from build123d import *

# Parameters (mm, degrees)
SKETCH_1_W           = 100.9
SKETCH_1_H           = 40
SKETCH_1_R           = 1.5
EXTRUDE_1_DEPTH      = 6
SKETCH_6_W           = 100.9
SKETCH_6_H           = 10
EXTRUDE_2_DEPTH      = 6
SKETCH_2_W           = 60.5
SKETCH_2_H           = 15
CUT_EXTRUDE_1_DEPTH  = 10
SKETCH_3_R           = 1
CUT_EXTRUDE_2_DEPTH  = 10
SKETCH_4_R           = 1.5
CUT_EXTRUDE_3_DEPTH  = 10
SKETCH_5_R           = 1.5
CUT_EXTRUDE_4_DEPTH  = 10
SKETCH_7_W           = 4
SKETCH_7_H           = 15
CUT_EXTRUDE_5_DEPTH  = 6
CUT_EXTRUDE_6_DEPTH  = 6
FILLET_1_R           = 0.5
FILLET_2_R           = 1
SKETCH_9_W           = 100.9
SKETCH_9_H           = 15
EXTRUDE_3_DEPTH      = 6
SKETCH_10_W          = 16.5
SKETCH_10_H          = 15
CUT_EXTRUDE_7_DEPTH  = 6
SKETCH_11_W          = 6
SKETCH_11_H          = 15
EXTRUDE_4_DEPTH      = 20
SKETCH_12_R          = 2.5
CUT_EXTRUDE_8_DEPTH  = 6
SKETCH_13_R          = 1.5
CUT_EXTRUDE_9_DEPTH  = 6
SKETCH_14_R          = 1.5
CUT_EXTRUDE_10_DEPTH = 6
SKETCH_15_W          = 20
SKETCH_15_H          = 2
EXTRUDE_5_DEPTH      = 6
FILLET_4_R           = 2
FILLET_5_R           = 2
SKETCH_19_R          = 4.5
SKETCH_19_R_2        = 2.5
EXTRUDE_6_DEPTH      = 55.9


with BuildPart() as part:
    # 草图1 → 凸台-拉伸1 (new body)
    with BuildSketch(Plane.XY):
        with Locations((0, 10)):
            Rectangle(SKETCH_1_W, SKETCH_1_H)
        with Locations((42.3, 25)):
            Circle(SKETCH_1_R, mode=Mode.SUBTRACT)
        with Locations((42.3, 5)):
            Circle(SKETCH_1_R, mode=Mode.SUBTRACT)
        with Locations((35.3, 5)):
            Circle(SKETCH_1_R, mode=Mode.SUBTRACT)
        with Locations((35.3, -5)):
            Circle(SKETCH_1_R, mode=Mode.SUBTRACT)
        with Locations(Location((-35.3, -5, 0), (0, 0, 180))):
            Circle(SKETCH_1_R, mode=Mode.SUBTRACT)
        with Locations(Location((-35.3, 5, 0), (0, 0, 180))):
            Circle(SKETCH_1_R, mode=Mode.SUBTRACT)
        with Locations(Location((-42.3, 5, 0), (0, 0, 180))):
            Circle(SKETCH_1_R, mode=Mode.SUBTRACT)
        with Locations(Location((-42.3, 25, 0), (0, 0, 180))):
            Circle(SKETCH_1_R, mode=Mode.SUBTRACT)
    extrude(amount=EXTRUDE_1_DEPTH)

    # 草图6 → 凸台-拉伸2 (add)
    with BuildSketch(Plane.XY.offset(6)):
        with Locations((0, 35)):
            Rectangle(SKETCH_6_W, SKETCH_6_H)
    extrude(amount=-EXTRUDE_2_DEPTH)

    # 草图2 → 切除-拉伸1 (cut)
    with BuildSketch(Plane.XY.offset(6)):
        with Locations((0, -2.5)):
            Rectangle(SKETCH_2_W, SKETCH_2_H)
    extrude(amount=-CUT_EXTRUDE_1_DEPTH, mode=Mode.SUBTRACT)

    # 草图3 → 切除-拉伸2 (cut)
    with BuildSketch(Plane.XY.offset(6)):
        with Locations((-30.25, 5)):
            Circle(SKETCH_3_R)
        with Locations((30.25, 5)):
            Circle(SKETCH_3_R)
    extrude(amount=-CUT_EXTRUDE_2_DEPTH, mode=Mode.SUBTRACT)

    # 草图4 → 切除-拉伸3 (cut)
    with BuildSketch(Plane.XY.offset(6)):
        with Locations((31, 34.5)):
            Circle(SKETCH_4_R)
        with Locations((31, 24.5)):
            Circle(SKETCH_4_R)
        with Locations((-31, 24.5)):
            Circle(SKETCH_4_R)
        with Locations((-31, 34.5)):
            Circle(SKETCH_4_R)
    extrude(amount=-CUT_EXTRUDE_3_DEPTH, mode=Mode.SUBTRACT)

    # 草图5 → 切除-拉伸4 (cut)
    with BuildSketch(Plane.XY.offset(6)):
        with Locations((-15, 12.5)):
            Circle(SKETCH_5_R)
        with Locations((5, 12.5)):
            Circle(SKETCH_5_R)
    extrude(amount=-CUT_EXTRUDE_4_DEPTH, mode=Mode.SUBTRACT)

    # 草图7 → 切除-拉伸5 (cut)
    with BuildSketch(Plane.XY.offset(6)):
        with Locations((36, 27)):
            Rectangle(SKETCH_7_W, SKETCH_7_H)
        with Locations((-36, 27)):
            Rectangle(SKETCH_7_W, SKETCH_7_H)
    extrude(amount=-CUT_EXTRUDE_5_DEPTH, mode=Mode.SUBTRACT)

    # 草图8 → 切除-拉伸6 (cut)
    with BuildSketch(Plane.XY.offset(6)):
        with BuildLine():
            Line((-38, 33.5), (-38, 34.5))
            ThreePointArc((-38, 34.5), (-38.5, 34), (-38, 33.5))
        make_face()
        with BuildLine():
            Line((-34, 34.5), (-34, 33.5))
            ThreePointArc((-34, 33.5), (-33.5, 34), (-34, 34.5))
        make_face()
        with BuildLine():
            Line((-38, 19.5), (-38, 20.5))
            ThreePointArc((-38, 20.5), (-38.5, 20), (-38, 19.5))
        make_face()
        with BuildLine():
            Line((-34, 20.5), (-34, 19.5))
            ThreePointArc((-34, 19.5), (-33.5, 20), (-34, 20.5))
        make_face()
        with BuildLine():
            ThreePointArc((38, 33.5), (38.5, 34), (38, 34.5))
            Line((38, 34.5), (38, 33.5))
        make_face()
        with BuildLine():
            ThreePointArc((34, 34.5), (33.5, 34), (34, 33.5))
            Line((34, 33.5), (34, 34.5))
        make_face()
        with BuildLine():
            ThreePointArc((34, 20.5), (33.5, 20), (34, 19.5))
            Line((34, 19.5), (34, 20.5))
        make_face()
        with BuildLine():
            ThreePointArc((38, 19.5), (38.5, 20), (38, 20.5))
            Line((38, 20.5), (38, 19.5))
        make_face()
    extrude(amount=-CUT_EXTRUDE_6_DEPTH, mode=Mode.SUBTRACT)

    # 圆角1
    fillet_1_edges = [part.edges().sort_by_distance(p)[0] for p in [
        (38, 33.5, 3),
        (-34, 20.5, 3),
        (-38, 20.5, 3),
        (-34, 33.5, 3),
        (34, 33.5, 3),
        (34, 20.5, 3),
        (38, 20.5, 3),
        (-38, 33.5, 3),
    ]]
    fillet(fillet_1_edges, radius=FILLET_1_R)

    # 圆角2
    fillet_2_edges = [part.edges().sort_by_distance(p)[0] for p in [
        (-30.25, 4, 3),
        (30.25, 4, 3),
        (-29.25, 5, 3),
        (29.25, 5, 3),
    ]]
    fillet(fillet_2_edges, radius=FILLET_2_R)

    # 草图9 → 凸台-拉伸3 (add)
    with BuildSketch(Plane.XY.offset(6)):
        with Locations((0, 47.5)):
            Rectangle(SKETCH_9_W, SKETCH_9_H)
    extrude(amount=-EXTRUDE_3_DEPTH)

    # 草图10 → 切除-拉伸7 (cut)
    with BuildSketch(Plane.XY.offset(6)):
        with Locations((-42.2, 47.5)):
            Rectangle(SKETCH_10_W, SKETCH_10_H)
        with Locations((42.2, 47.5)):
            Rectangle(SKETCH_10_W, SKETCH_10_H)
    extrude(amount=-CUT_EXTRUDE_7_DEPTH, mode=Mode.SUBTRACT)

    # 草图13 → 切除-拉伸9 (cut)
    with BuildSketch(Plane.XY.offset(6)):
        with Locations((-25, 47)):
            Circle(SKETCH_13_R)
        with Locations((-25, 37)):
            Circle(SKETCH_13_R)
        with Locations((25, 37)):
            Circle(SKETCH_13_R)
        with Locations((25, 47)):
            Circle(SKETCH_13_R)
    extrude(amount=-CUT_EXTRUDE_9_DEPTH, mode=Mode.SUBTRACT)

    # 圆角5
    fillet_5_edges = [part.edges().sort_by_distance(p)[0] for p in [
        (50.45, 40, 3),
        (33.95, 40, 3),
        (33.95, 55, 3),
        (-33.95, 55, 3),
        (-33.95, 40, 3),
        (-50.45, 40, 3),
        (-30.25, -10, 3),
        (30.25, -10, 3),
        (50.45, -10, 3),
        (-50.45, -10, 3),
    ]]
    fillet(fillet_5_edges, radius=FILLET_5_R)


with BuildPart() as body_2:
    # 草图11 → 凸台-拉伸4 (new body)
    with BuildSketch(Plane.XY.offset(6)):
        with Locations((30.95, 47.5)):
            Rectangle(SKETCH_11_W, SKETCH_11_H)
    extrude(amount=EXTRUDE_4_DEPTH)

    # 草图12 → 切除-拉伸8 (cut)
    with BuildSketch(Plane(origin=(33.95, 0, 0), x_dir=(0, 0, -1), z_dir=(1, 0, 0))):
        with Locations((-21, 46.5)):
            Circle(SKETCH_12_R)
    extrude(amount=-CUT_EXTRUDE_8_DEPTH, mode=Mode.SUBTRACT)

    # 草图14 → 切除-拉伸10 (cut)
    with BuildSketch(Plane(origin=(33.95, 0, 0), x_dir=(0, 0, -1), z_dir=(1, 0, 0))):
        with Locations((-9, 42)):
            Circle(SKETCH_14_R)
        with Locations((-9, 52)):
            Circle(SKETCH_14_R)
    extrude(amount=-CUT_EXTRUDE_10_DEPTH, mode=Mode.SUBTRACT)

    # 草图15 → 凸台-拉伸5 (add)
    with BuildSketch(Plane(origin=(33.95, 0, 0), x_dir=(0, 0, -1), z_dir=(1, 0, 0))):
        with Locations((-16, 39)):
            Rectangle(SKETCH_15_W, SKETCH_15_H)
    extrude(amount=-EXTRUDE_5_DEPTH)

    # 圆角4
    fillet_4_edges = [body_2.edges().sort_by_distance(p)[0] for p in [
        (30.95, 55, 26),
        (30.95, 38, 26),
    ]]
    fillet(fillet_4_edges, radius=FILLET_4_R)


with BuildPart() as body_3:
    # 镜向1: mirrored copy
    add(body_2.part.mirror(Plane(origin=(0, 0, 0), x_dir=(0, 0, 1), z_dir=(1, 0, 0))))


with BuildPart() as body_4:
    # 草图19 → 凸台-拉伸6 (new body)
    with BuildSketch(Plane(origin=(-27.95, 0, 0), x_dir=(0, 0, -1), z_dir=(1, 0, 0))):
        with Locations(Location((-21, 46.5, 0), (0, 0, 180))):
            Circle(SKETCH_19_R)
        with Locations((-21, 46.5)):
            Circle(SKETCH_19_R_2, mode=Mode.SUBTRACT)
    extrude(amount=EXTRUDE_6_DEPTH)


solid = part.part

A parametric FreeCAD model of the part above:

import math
import FreeCAD as App
import Part
import Sketcher

V = App.Vector


def edges_at(feature, points):
    """Names of the edges that pass closest to the given points."""
    edges = feature.Shape.Edges
    near = lambda p: min(range(len(edges)), key=lambda i: edges[i].distToShape(Part.Vertex(*p))[0])
    return sorted({f"Edge{near(p) + 1}" for p in points})

doc = App.newDocument("Part")
params = doc.addObject("Spreadsheet::Sheet", "Params")
for row, (alias, value) in enumerate([
    ("sketch1_diameter", "3 mm"),
    ("sketch1_height", "40 mm"),
    ("sketch1_width", "100.9 mm"),
    ("pad1_length", "6 mm"),
    ("sketch2_height", "10 mm"),
    ("sketch2_width", "100.9 mm"),
    ("pad2_length", "6 mm"),
    ("sketch3_height", "15 mm"),
    ("sketch3_width", "60.5 mm"),
    ("pocket1_length", "10 mm"),
    ("sketch4_diameter", "2 mm"),
    ("pocket2_length", "10 mm"),
    ("sketch5_diameter", "3 mm"),
    ("pocket3_length", "10 mm"),
    ("sketch6_diameter", "3 mm"),
    ("pocket4_length", "10 mm"),
    ("sketch7_width", "4 mm"),
    ("sketch7_height", "15 mm"),
    ("pocket5_length", "6 mm"),
    ("sketch8_radius", "0.5 mm"),
    ("pocket6_length", "6 mm"),
    ("fillet_radius", "0.5 mm"),
    ("fillet2_radius", "1 mm"),
    ("sketch9_height", "15 mm"),
    ("sketch9_width", "100.9 mm"),
    ("pad3_length", "6 mm"),
    ("sketch10_height", "15 mm"),
    ("sketch10_width", "16.5 mm"),
    ("pocket7_length", "6 mm"),
    ("sketch11_diameter", "3 mm"),
    ("pocket8_length", "6 mm"),
    ("fillet3_radius", "2 mm"),
    ("sketch12_width", "6 mm"),
    ("sketch12_height", "15 mm"),
    ("pad4_length", "20 mm"),
    ("sketch13_diameter", "5 mm"),
    ("pocket9_length", "6 mm"),
    ("sketch14_diameter", "3 mm"),
    ("pocket10_length", "6 mm"),
    ("sketch15_width", "2 mm"),
    ("sketch15_height", "20 mm"),
    ("pad5_length", "6 mm"),
    ("fillet4_radius", "2 mm"),
    ("sketch16_diameter", "9 mm"),
    ("sketch16_diameter2", "5 mm"),
    ("pad6_length", "55.9 mm"),
], start=1):
    params.set(f"A{row}", alias)
    params.set(f"B{row}", "=" + value)
    params.setAlias(f"B{row}", alias)

body = doc.addObject("PartDesign::Body", "Body")

# Sketch on XY plane
sketch1 = doc.addObject("Sketcher::SketchObject", "Sketch")
body.addObject(sketch1)
sketch1.AttachmentSupport = (doc.XY_Plane, [""])
sketch1.MapMode = "FlatFace"
sketch1.addGeometry(Part.LineSegment(V(-50.45, 30, 0), V(-50.45, -10, 0)), False)
sketch1.addGeometry(Part.LineSegment(V(-50.45, -10, 0), V(50.45, -10, 0)), False)
sketch1.addGeometry(Part.LineSegment(V(50.45, -10, 0), V(50.45, 30, 0)), False)
sketch1.addGeometry(Part.LineSegment(V(50.45, 30, 0), V(-50.45, 30, 0)), False)
sketch1.addGeometry(Part.Circle(V(-35.3, -5, 0), V(0, 0, 1), 1.5), False)
sketch1.addGeometry(Part.Circle(V(-42.3, 5, 0), V(0, 0, 1), 1.5), False)
sketch1.addGeometry(Part.Circle(V(-35.3, 5, 0), V(0, 0, 1), 1.5), False)
sketch1.addGeometry(Part.Circle(V(35.3, -5, 0), V(0, 0, 1), 1.5), False)
sketch1.addGeometry(Part.Circle(V(35.3, 5, 0), V(0, 0, 1), 1.5), False)
sketch1.addGeometry(Part.Circle(V(42.3, 5, 0), V(0, 0, 1), 1.5), False)
sketch1.addGeometry(Part.Circle(V(-42.3, 25, 0), V(0, 0, 1), 1.5), False)
sketch1.addGeometry(Part.Circle(V(42.3, 25, 0), V(0, 0, 1), 1.5), False)
sketch1.addConstraint(Sketcher.Constraint("Coincident", 0, 2, 1, 1))
sketch1.addConstraint(Sketcher.Constraint("Coincident", 1, 2, 2, 1))
sketch1.addConstraint(Sketcher.Constraint("Coincident", 2, 2, 3, 1))
sketch1.addConstraint(Sketcher.Constraint("Coincident", 3, 2, 0, 1))
sketch1.addConstraint(Sketcher.Constraint("Vertical", 0))
sketch1.addConstraint(Sketcher.Constraint("Horizontal", 1))
sketch1.addConstraint(Sketcher.Constraint("Vertical", 2))
sketch1.addConstraint(Sketcher.Constraint("Horizontal", 3))
sketch1.addConstraint(Sketcher.Constraint("Equal", 4, 5))
sketch1.addConstraint(Sketcher.Constraint("Equal", 5, 6))
sketch1.addConstraint(Sketcher.Constraint("Equal", 6, 7))
sketch1.addConstraint(Sketcher.Constraint("Equal", 7, 8))
sketch1.addConstraint(Sketcher.Constraint("Equal", 8, 9))
sketch1.addConstraint(Sketcher.Constraint("Equal", 9, 10))
sketch1.addConstraint(Sketcher.Constraint("Equal", 10, 11))
sketch1.addConstraint(Sketcher.Constraint("Symmetric", 6, 3, 7, 3, -1, 1))
sketch1.addConstraint(Sketcher.Constraint("Symmetric", 4, 3, 8, 3, -1, 1))
sketch1.addConstraint(Sketcher.Constraint("Symmetric", 4, 3, 7, 3, -2))
sketch1.addConstraint(Sketcher.Constraint("Symmetric", 5, 3, 9, 3, -2))
sketch1.addConstraint(Sketcher.Constraint("Symmetric", 10, 3, 11, 3, -2))
sketch1.addConstraint(Sketcher.Constraint("Horizontal", 5, 3, 6, 3))
sketch1.addConstraint(Sketcher.Constraint("Vertical", 5, 3, 10, 3))
sketch1.addConstraint(Sketcher.Constraint("Diameter", 4, 3.0))
sketch1.addConstraint(Sketcher.Constraint("DistanceY", 0, 2, 0, 1, 40.0))
sketch1.addConstraint(Sketcher.Constraint("DistanceX", 1, 1, 1, 2, 100.9))
sketch1.addConstraint(Sketcher.Constraint("DistanceY", 4, 3, -1, 1, 5.0))
sketch1.addConstraint(Sketcher.Constraint("DistanceY", -1, 1, 10, 3, 25.0))
sketch1.addConstraint(Sketcher.Constraint("DistanceY", 0, 2, -1, 1, 10.0))
sketch1.addConstraint(Sketcher.Constraint("DistanceX", 5, 3, 4, 3, 7.0))
sketch1.addConstraint(Sketcher.Constraint("DistanceX", 4, 3, -1, 1, 35.3))
sketch1.addConstraint(Sketcher.Constraint("DistanceX", 0, 2, -1, 1, 50.45))
sketch1.setExpression("Constraints[22]", "Params.sketch1_diameter")
sketch1.setExpression("Constraints[23]", "Params.sketch1_height")
sketch1.setExpression("Constraints[24]", "Params.sketch1_width")
pad1 = doc.addObject("PartDesign::Pad", "Pad")
body.addObject(pad1)
pad1.Profile = sketch1
pad1.setExpression("Length", "Params.pad1_length")

# Sketch on XY plane
sketch2 = doc.addObject("Sketcher::SketchObject", "Sketch001")
body.addObject(sketch2)
sketch2.AttachmentSupport = (doc.XY_Plane, [""])
sketch2.MapMode = "FlatFace"
sketch2.AttachmentOffset = App.Placement(V(0, 0, 6), App.Rotation())
sketch2.addGeometry(Part.LineSegment(V(-50.45, 40, 0), V(-50.45, 30, 0)), False)
sketch2.addGeometry(Part.LineSegment(V(-50.45, 30, 0), V(50.45, 30, 0)), False)
sketch2.addGeometry(Part.LineSegment(V(50.45, 30, 0), V(50.45, 40, 0)), False)
sketch2.addGeometry(Part.LineSegment(V(50.45, 40, 0), V(-50.45, 40, 0)), False)
sketch2.addConstraint(Sketcher.Constraint("Coincident", 0, 2, 1, 1))
sketch2.addConstraint(Sketcher.Constraint("Coincident", 1, 2, 2, 1))
sketch2.addConstraint(Sketcher.Constraint("Coincident", 2, 2, 3, 1))
sketch2.addConstraint(Sketcher.Constraint("Coincident", 3, 2, 0, 1))
sketch2.addConstraint(Sketcher.Constraint("Vertical", 0))
sketch2.addConstraint(Sketcher.Constraint("Horizontal", 1))
sketch2.addConstraint(Sketcher.Constraint("Vertical", 2))
sketch2.addConstraint(Sketcher.Constraint("Horizontal", 3))
sketch2.addConstraint(Sketcher.Constraint("DistanceY", 0, 2, 0, 1, 10.0))
sketch2.addConstraint(Sketcher.Constraint("DistanceX", 1, 1, 1, 2, 100.9))
sketch2.addConstraint(Sketcher.Constraint("DistanceY", -1, 1, 0, 2, 30.0))
sketch2.addConstraint(Sketcher.Constraint("DistanceX", 0, 2, -1, 1, 50.45))
sketch2.setExpression("Constraints[8]", "Params.sketch2_height")
sketch2.setExpression("Constraints[9]", "Params.sketch2_width")
pad2 = doc.addObject("PartDesign::Pad", "Pad001")
body.addObject(pad2)
pad2.Profile = sketch2
pad2.setExpression("Length", "Params.pad2_length")
pad2.Reversed = True

# Sketch on XY plane
sketch3 = doc.addObject("Sketcher::SketchObject", "Sketch002")
body.addObject(sketch3)
sketch3.AttachmentSupport = (doc.XY_Plane, [""])
sketch3.MapMode = "FlatFace"
sketch3.AttachmentOffset = App.Placement(V(0, 0, 6), App.Rotation())
sketch3.addGeometry(Part.LineSegment(V(-30.25, 5, 0), V(-30.25, -10, 0)), False)
sketch3.addGeometry(Part.LineSegment(V(-30.25, -10, 0), V(30.25, -10, 0)), False)
sketch3.addGeometry(Part.LineSegment(V(30.25, -10, 0), V(30.25, 5, 0)), False)
sketch3.addGeometry(Part.LineSegment(V(30.25, 5, 0), V(-30.25, 5, 0)), False)
sketch3.addConstraint(Sketcher.Constraint("Coincident", 0, 2, 1, 1))
sketch3.addConstraint(Sketcher.Constraint("Coincident", 1, 2, 2, 1))
sketch3.addConstraint(Sketcher.Constraint("Coincident", 2, 2, 3, 1))
sketch3.addConstraint(Sketcher.Constraint("Coincident", 3, 2, 0, 1))
sketch3.addConstraint(Sketcher.Constraint("Vertical", 0))
sketch3.addConstraint(Sketcher.Constraint("Horizontal", 1))
sketch3.addConstraint(Sketcher.Constraint("Vertical", 2))
sketch3.addConstraint(Sketcher.Constraint("Horizontal", 3))
sketch3.addConstraint(Sketcher.Constraint("DistanceY", 0, 2, 0, 1, 15.0))
sketch3.addConstraint(Sketcher.Constraint("DistanceX", 1, 1, 1, 2, 60.5))
sketch3.addConstraint(Sketcher.Constraint("DistanceY", 0, 2, -1, 1, 10.0))
sketch3.addConstraint(Sketcher.Constraint("DistanceX", 0, 2, -1, 1, 30.25))
sketch3.setExpression("Constraints[8]", "Params.sketch3_height")
sketch3.setExpression("Constraints[9]", "Params.sketch3_width")
pocket1 = doc.addObject("PartDesign::Pocket", "Pocket")
body.addObject(pocket1)
pocket1.Profile = sketch3
pocket1.setExpression("Length", "Params.pocket1_length")

# Sketch on XY plane
sketch4 = doc.addObject("Sketcher::SketchObject", "Sketch003")
body.addObject(sketch4)
sketch4.AttachmentSupport = (doc.XY_Plane, [""])
sketch4.MapMode = "FlatFace"
sketch4.AttachmentOffset = App.Placement(V(0, 0, 6), App.Rotation())
sketch4.addGeometry(Part.Circle(V(-30.25, 5, 0), V(0, 0, 1), 1), False)
sketch4.addGeometry(Part.Circle(V(30.25, 5, 0), V(0, 0, 1), 1), False)
sketch4.addConstraint(Sketcher.Constraint("Equal", 0, 1))
sketch4.addConstraint(Sketcher.Constraint("Symmetric", 0, 3, 1, 3, -2))
sketch4.addConstraint(Sketcher.Constraint("Diameter", 0, 2.0))
sketch4.addConstraint(Sketcher.Constraint("DistanceY", -1, 1, 0, 3, 5.0))
sketch4.addConstraint(Sketcher.Constraint("DistanceX", 0, 3, 1, 3, 60.5))
sketch4.setExpression("Constraints[2]", "Params.sketch4_diameter")
pocket2 = doc.addObject("PartDesign::Pocket", "Pocket001")
body.addObject(pocket2)
pocket2.Profile = sketch4
pocket2.setExpression("Length", "Params.pocket2_length")

# Sketch on XY plane
sketch5 = doc.addObject("Sketcher::SketchObject", "Sketch004")
body.addObject(sketch5)
sketch5.AttachmentSupport = (doc.XY_Plane, [""])
sketch5.MapMode = "FlatFace"
sketch5.AttachmentOffset = App.Placement(V(0, 0, 6), App.Rotation())
sketch5.addGeometry(Part.Circle(V(31, 34.5, 0), V(0, 0, 1), 1.5), False)
sketch5.addGeometry(Part.Circle(V(31, 24.5, 0), V(0, 0, 1), 1.5), False)
sketch5.addGeometry(Part.Circle(V(-31, 24.5, 0), V(0, 0, 1), 1.5), False)
sketch5.addGeometry(Part.Circle(V(-31, 34.5, 0), V(0, 0, 1), 1.5), False)
sketch5.addConstraint(Sketcher.Constraint("Equal", 0, 1))
sketch5.addConstraint(Sketcher.Constraint("Equal", 1, 2))
sketch5.addConstraint(Sketcher.Constraint("Equal", 2, 3))
sketch5.addConstraint(Sketcher.Constraint("Symmetric", 1, 3, 2, 3, -2))
sketch5.addConstraint(Sketcher.Constraint("Symmetric", 0, 3, 3, 3, -2))
sketch5.addConstraint(Sketcher.Constraint("Vertical", 0, 3, 1, 3))
sketch5.addConstraint(Sketcher.Constraint("Diameter", 0, 3.0))
sketch5.addConstraint(Sketcher.Constraint("DistanceX", -1, 1, 0, 3, 31.0))
sketch5.addConstraint(Sketcher.Constraint("DistanceY", 1, 3, 0, 3, 10.0))
sketch5.addConstraint(Sketcher.Constraint("DistanceY", -1, 1, 0, 3, 34.5))
sketch5.setExpression("Constraints[6]", "Params.sketch5_diameter")
pocket3 = doc.addObject("PartDesign::Pocket", "Pocket002")
body.addObject(pocket3)
pocket3.Profile = sketch5
pocket3.setExpression("Length", "Params.pocket3_length")

# Sketch on XY plane
sketch6 = doc.addObject("Sketcher::SketchObject", "Sketch005")
body.addObject(sketch6)
sketch6.AttachmentSupport = (doc.XY_Plane, [""])
sketch6.MapMode = "FlatFace"
sketch6.AttachmentOffset = App.Placement(V(0, 0, 6), App.Rotation())
sketch6.addGeometry(Part.Circle(V(-15, 12.5, 0), V(0, 0, 1), 1.5), False)
sketch6.addGeometry(Part.Circle(V(5, 12.5, 0), V(0, 0, 1), 1.5), False)
sketch6.addConstraint(Sketcher.Constraint("Equal", 0, 1))
sketch6.addConstraint(Sketcher.Constraint("Horizontal", 0, 3, 1, 3))
sketch6.addConstraint(Sketcher.Constraint("Diameter", 0, 3.0))
sketch6.addConstraint(Sketcher.Constraint("DistanceX", 0, 3, -1, 1, 15.0))
sketch6.addConstraint(Sketcher.Constraint("DistanceX", -1, 1, 1, 3, 5.0))
sketch6.addConstraint(Sketcher.Constraint("DistanceY", -1, 1, 0, 3, 12.5))
sketch6.setExpression("Constraints[2]", "Params.sketch6_diameter")
pocket4 = doc.addObject("PartDesign::Pocket", "Pocket003")
body.addObject(pocket4)
pocket4.Profile = sketch6
pocket4.setExpression("Length", "Params.pocket4_length")

# Sketch on XY plane
sketch7 = doc.addObject("Sketcher::SketchObject", "Sketch006")
body.addObject(sketch7)
sketch7.AttachmentSupport = (doc.XY_Plane, [""])
sketch7.MapMode = "FlatFace"
sketch7.AttachmentOffset = App.Placement(V(0, 0, 6), App.Rotation())
sketch7.addGeometry(Part.LineSegment(V(34, 34.5, 0), V(34, 19.5, 0)), False)
sketch7.addGeometry(Part.LineSegment(V(34, 19.5, 0), V(38, 19.5, 0)), False)
sketch7.addGeometry(Part.LineSegment(V(38, 19.5, 0), V(38, 34.5, 0)), False)
sketch7.addGeometry(Part.LineSegment(V(38, 34.5, 0), V(34, 34.5, 0)), False)
sketch7.addGeometry(Part.LineSegment(V(-38, 34.5, 0), V(-38, 19.5, 0)), False)
sketch7.addGeometry(Part.LineSegment(V(-38, 19.5, 0), V(-34, 19.5, 0)), False)
sketch7.addGeometry(Part.LineSegment(V(-34, 19.5, 0), V(-34, 34.5, 0)), False)
sketch7.addGeometry(Part.LineSegment(V(-34, 34.5, 0), V(-38, 34.5, 0)), False)
sketch7.addConstraint(Sketcher.Constraint("Coincident", 0, 2, 1, 1))
sketch7.addConstraint(Sketcher.Constraint("Coincident", 1, 2, 2, 1))
sketch7.addConstraint(Sketcher.Constraint("Coincident", 2, 2, 3, 1))
sketch7.addConstraint(Sketcher.Constraint("Coincident", 3, 2, 0, 1))
sketch7.addConstraint(Sketcher.Constraint("Coincident", 4, 2, 5, 1))
sketch7.addConstraint(Sketcher.Constraint("Coincident", 5, 2, 6, 1))
sketch7.addConstraint(Sketcher.Constraint("Coincident", 6, 2, 7, 1))
sketch7.addConstraint(Sketcher.Constraint("Coincident", 7, 2, 4, 1))
sketch7.addConstraint(Sketcher.Constraint("Vertical", 0))
sketch7.addConstraint(Sketcher.Constraint("Horizontal", 1))
sketch7.addConstraint(Sketcher.Constraint("Vertical", 2))
sketch7.addConstraint(Sketcher.Constraint("Horizontal", 3))
sketch7.addConstraint(Sketcher.Constraint("Vertical", 4))
sketch7.addConstraint(Sketcher.Constraint("Horizontal", 5))
sketch7.addConstraint(Sketcher.Constraint("Vertical", 6))
sketch7.addConstraint(Sketcher.Constraint("Horizontal", 7))
sketch7.addConstraint(Sketcher.Constraint("Symmetric", 1, 2, 4, 2, -2))
sketch7.addConstraint(Sketcher.Constraint("Symmetric", 3, 2, 6, 2, -2))
sketch7.addConstraint(Sketcher.Constraint("DistanceX", 1, 1, 1, 2, 4.0))
sketch7.addConstraint(Sketcher.Constraint("DistanceY", 0, 2, 0, 1, 15.0))
sketch7.addConstraint(Sketcher.Constraint("DistanceX", -1, 1, 0, 2, 34.0))
sketch7.addConstraint(Sketcher.Constraint("DistanceY", -1, 1, 0, 2, 19.5))
sketch7.setExpression("Constraints[18]", "Params.sketch7_width")
sketch7.setExpression("Constraints[19]", "Params.sketch7_height")
pocket5 = doc.addObject("PartDesign::Pocket", "Pocket004")
body.addObject(pocket5)
pocket5.Profile = sketch7
pocket5.setExpression("Length", "Params.pocket5_length")

# Sketch on XY plane
sketch8 = doc.addObject("Sketcher::SketchObject", "Sketch007")
body.addObject(sketch8)
sketch8.AttachmentSupport = (doc.XY_Plane, [""])
sketch8.MapMode = "FlatFace"
sketch8.AttachmentOffset = App.Placement(V(0, 0, 6), App.Rotation())
sketch8.addGeometry(Part.LineSegment(V(-38, 33.5, 0), V(-38, 34.5, 0)), False)
sketch8.addGeometry(Part.ArcOfCircle(Part.Circle(V(-38, 34, 0), V(0, 0, 1), 0.5), math.radians(90), math.radians(270)), False)
sketch8.addGeometry(Part.LineSegment(V(-34, 34.5, 0), V(-34, 33.5, 0)), False)
sketch8.addGeometry(Part.ArcOfCircle(Part.Circle(V(-34, 34, 0), V(0, 0, 1), 0.5), math.radians(-90), math.radians(90)), False)
sketch8.addGeometry(Part.LineSegment(V(-38, 19.5, 0), V(-38, 20.5, 0)), False)
sketch8.addGeometry(Part.ArcOfCircle(Part.Circle(V(-38, 20, 0), V(0, 0, 1), 0.5), math.radians(90), math.radians(270)), False)
sketch8.addGeometry(Part.LineSegment(V(-34, 20.5, 0), V(-34, 19.5, 0)), False)
sketch8.addGeometry(Part.ArcOfCircle(Part.Circle(V(-34, 20, 0), V(0, 0, 1), 0.5), math.radians(-90), math.radians(90)), False)
sketch8.addGeometry(Part.ArcOfCircle(Part.Circle(V(38, 34, 0), V(0, 0, 1), 0.5), math.radians(-90), math.radians(90)), False)
sketch8.addGeometry(Part.LineSegment(V(38, 34.5, 0), V(38, 33.5, 0)), False)
sketch8.addGeometry(Part.ArcOfCircle(Part.Circle(V(34, 34, 0), V(0, 0, 1), 0.5), math.radians(90), math.radians(270)), False)
sketch8.addGeometry(Part.LineSegment(V(34, 33.5, 0), V(34, 34.5, 0)), False)
sketch8.addGeometry(Part.ArcOfCircle(Part.Circle(V(34, 20, 0), V(0, 0, 1), 0.5), math.radians(90), math.radians(270)), False)
sketch8.addGeometry(Part.LineSegment(V(34, 19.5, 0), V(34, 20.5, 0)), False)
sketch8.addGeometry(Part.ArcOfCircle(Part.Circle(V(38, 20, 0), V(0, 0, 1), 0.5), math.radians(-90), math.radians(90)), False)
sketch8.addGeometry(Part.LineSegment(V(38, 20.5, 0), V(38, 19.5, 0)), False)
sketch8.addConstraint(Sketcher.Constraint("Coincident", 0, 1, 1, 2))
sketch8.addConstraint(Sketcher.Constraint("Coincident", 1, 1, 0, 2))
sketch8.addConstraint(Sketcher.Constraint("Coincident", 2, 1, 3, 2))
sketch8.addConstraint(Sketcher.Constraint("Coincident", 3, 1, 2, 2))
sketch8.addConstraint(Sketcher.Constraint("Coincident", 4, 1, 5, 2))
sketch8.addConstraint(Sketcher.Constraint("Coincident", 5, 1, 4, 2))
sketch8.addConstraint(Sketcher.Constraint("Coincident", 6, 1, 7, 2))
sketch8.addConstraint(Sketcher.Constraint("Coincident", 7, 1, 6, 2))
sketch8.addConstraint(Sketcher.Constraint("Coincident", 8, 1, 9, 2))
sketch8.addConstraint(Sketcher.Constraint("Coincident", 9, 1, 8, 2))
sketch8.addConstraint(Sketcher.Constraint("Coincident", 10, 1, 11, 2))
sketch8.addConstraint(Sketcher.Constraint("Coincident", 11, 1, 10, 2))
sketch8.addConstraint(Sketcher.Constraint("Coincident", 12, 1, 13, 2))
sketch8.addConstraint(Sketcher.Constraint("Coincident", 13, 1, 12, 2))
sketch8.addConstraint(Sketcher.Constraint("Coincident", 14, 1, 15, 2))
sketch8.addConstraint(Sketcher.Constraint("Coincident", 15, 1, 14, 2))
sketch8.addConstraint(Sketcher.Constraint("Vertical", 0))
sketch8.addConstraint(Sketcher.Constraint("Vertical", 2))
sketch8.addConstraint(Sketcher.Constraint("Vertical", 4))
sketch8.addConstraint(Sketcher.Constraint("Vertical", 6))
sketch8.addConstraint(Sketcher.Constraint("Vertical", 9))
sketch8.addConstraint(Sketcher.Constraint("Vertical", 11))
sketch8.addConstraint(Sketcher.Constraint("Vertical", 13))
sketch8.addConstraint(Sketcher.Constraint("Vertical", 15))
sketch8.addConstraint(Sketcher.Constraint("Equal", 1, 3))
sketch8.addConstraint(Sketcher.Constraint("Equal", 3, 5))
sketch8.addConstraint(Sketcher.Constraint("Equal", 5, 7))
sketch8.addConstraint(Sketcher.Constraint("Equal", 7, 8))
sketch8.addConstraint(Sketcher.Constraint("Equal", 8, 10))
sketch8.addConstraint(Sketcher.Constraint("Equal", 10, 12))
sketch8.addConstraint(Sketcher.Constraint("Equal", 12, 14))
sketch8.addConstraint(Sketcher.Constraint("Symmetric", 1, 3, 8, 3, -2))
sketch8.addConstraint(Sketcher.Constraint("Symmetric", 3, 3, 10, 3, -2))
sketch8.addConstraint(Sketcher.Constraint("Symmetric", 7, 3, 12, 3, -2))
sketch8.addConstraint(Sketcher.Constraint("Symmetric", 5, 3, 14, 3, -2))
sketch8.addConstraint(Sketcher.Constraint("Horizontal", 1, 3, 3, 3))
sketch8.addConstraint(Sketcher.Constraint("Horizontal", 5, 3, 7, 3))
sketch8.addConstraint(Sketcher.Constraint("Vertical", 1, 3, 5, 3))
sketch8.addConstraint(Sketcher.Constraint("Vertical", 3, 3, 7, 3))
sketch8.addConstraint(Sketcher.Constraint("Vertical", 5, 3, 0, 1))
sketch8.addConstraint(Sketcher.Constraint("Vertical", 7, 3, 2, 1))
sketch8.addConstraint(Sketcher.Constraint("Vertical", 1, 1, 4, 1))
sketch8.addConstraint(Sketcher.Constraint("Vertical", 3, 1, 6, 1))
sketch8.addConstraint(Sketcher.Constraint("Vertical", 14, 3, 8, 1))
sketch8.addConstraint(Sketcher.Constraint("Vertical", 12, 3, 10, 1))
sketch8.addConstraint(Sketcher.Constraint("Vertical", 11, 1, 12, 1))
sketch8.addConstraint(Sketcher.Constraint("Vertical", 9, 1, 14, 1))
sketch8.addConstraint(Sketcher.Constraint("Radius", 1, 0.5))
sketch8.addConstraint(Sketcher.Constraint("DistanceX", 1, 3, -1, 1, 38.0))
sketch8.addConstraint(Sketcher.Constraint("DistanceY", -1, 1, 1, 3, 34.0))
sketch8.addConstraint(Sketcher.Constraint("DistanceX", 3, 3, -1, 1, 34.0))
sketch8.addConstraint(Sketcher.Constraint("DistanceY", -1, 1, 5, 3, 20.0))
sketch8.setExpression("Constraints[47]", "Params.sketch8_radius")
pocket6 = doc.addObject("PartDesign::Pocket", "Pocket005")
body.addObject(pocket6)
pocket6.Profile = sketch8
pocket6.setExpression("Length", "Params.pocket6_length")
doc.recompute()

fillet = doc.addObject("PartDesign::Fillet", "Fillet")
body.addObject(fillet)
fillet.Base = (pocket6, edges_at(pocket6, [
    (38, 33.5, 3),
    (-34, 20.5, 3),
    (-38, 20.5, 3),
    (-34, 33.5, 3),
    (34, 33.5, 3),
    (34, 20.5, 3),
    (38, 20.5, 3),
    (-38, 33.5, 3),
]))
fillet.setExpression("Radius", "Params.fillet_radius")
doc.recompute()

fillet2 = doc.addObject("PartDesign::Fillet", "Fillet001")
body.addObject(fillet2)
fillet2.Base = (fillet, edges_at(fillet, [
    (-30.25, 4, 3),
    (30.25, 4, 3),
    (-29.25, 5, 3),
    (29.25, 5, 3),
]))
fillet2.setExpression("Radius", "Params.fillet2_radius")

# Sketch on XY plane
sketch9 = doc.addObject("Sketcher::SketchObject", "Sketch008")
body.addObject(sketch9)
sketch9.AttachmentSupport = (doc.XY_Plane, [""])
sketch9.MapMode = "FlatFace"
sketch9.AttachmentOffset = App.Placement(V(0, 0, 6), App.Rotation())
sketch9.addGeometry(Part.LineSegment(V(-50.45, 55, 0), V(-50.45, 40, 0)), False)
sketch9.addGeometry(Part.LineSegment(V(-50.45, 40, 0), V(50.45, 40, 0)), False)
sketch9.addGeometry(Part.LineSegment(V(50.45, 40, 0), V(50.45, 55, 0)), False)
sketch9.addGeometry(Part.LineSegment(V(50.45, 55, 0), V(-50.45, 55, 0)), False)
sketch9.addConstraint(Sketcher.Constraint("Coincident", 0, 2, 1, 1))
sketch9.addConstraint(Sketcher.Constraint("Coincident", 1, 2, 2, 1))
sketch9.addConstraint(Sketcher.Constraint("Coincident", 2, 2, 3, 1))
sketch9.addConstraint(Sketcher.Constraint("Coincident", 3, 2, 0, 1))
sketch9.addConstraint(Sketcher.Constraint("Vertical", 0))
sketch9.addConstraint(Sketcher.Constraint("Horizontal", 1))
sketch9.addConstraint(Sketcher.Constraint("Vertical", 2))
sketch9.addConstraint(Sketcher.Constraint("Horizontal", 3))
sketch9.addConstraint(Sketcher.Constraint("DistanceY", 0, 2, 0, 1, 15.0))
sketch9.addConstraint(Sketcher.Constraint("DistanceX", 1, 1, 1, 2, 100.9))
sketch9.addConstraint(Sketcher.Constraint("DistanceY", -1, 1, 0, 2, 40.0))
sketch9.addConstraint(Sketcher.Constraint("DistanceX", 0, 2, -1, 1, 50.45))
sketch9.setExpression("Constraints[8]", "Params.sketch9_height")
sketch9.setExpression("Constraints[9]", "Params.sketch9_width")
pad3 = doc.addObject("PartDesign::Pad", "Pad002")
body.addObject(pad3)
pad3.Profile = sketch9
pad3.setExpression("Length", "Params.pad3_length")
pad3.Reversed = True

# Sketch on XY plane
sketch10 = doc.addObject("Sketcher::SketchObject", "Sketch009")
body.addObject(sketch10)
sketch10.AttachmentSupport = (doc.XY_Plane, [""])
sketch10.MapMode = "FlatFace"
sketch10.AttachmentOffset = App.Placement(V(0, 0, 6), App.Rotation())
sketch10.addGeometry(Part.LineSegment(V(-50.45, 55, 0), V(-50.45, 40, 0)), False)
sketch10.addGeometry(Part.LineSegment(V(-50.45, 40, 0), V(-33.95, 40, 0)), False)
sketch10.addGeometry(Part.LineSegment(V(-33.95, 40, 0), V(-33.95, 55, 0)), False)
sketch10.addGeometry(Part.LineSegment(V(-33.95, 55, 0), V(-50.45, 55, 0)), False)
sketch10.addGeometry(Part.LineSegment(V(33.95, 55, 0), V(33.95, 40, 0)), False)
sketch10.addGeometry(Part.LineSegment(V(33.95, 40, 0), V(50.45, 40, 0)), False)
sketch10.addGeometry(Part.LineSegment(V(50.45, 40, 0), V(50.45, 55, 0)), False)
sketch10.addGeometry(Part.LineSegment(V(50.45, 55, 0), V(33.95, 55, 0)), False)
sketch10.addConstraint(Sketcher.Constraint("Coincident", 0, 2, 1, 1))
sketch10.addConstraint(Sketcher.Constraint("Coincident", 1, 2, 2, 1))
sketch10.addConstraint(Sketcher.Constraint("Coincident", 2, 2, 3, 1))
sketch10.addConstraint(Sketcher.Constraint("Coincident", 3, 2, 0, 1))
sketch10.addConstraint(Sketcher.Constraint("Coincident", 4, 2, 5, 1))
sketch10.addConstraint(Sketcher.Constraint("Coincident", 5, 2, 6, 1))
sketch10.addConstraint(Sketcher.Constraint("Coincident", 6, 2, 7, 1))
sketch10.addConstraint(Sketcher.Constraint("Coincident", 7, 2, 4, 1))
sketch10.addConstraint(Sketcher.Constraint("Vertical", 0))
sketch10.addConstraint(Sketcher.Constraint("Horizontal", 1))
sketch10.addConstraint(Sketcher.Constraint("Vertical", 2))
sketch10.addConstraint(Sketcher.Constraint("Horizontal", 3))
sketch10.addConstraint(Sketcher.Constraint("Vertical", 4))
sketch10.addConstraint(Sketcher.Constraint("Horizontal", 5))
sketch10.addConstraint(Sketcher.Constraint("Vertical", 6))
sketch10.addConstraint(Sketcher.Constraint("Horizontal", 7))
sketch10.addConstraint(Sketcher.Constraint("Symmetric", 1, 2, 4, 2, -2))
sketch10.addConstraint(Sketcher.Constraint("Symmetric", 3, 2, 6, 2, -2))
sketch10.addConstraint(Sketcher.Constraint("DistanceY", 0, 2, 0, 1, 15.0))
sketch10.addConstraint(Sketcher.Constraint("DistanceX", 1, 1, 1, 2, 16.5))
sketch10.addConstraint(Sketcher.Constraint("DistanceY", -1, 1, 0, 2, 40.0))
sketch10.addConstraint(Sketcher.Constraint("DistanceX", 1, 2, 4, 2, 67.9))
sketch10.setExpression("Constraints[18]", "Params.sketch10_height")
sketch10.setExpression("Constraints[19]", "Params.sketch10_width")
pocket7 = doc.addObject("PartDesign::Pocket", "Pocket006")
body.addObject(pocket7)
pocket7.Profile = sketch10
pocket7.setExpression("Length", "Params.pocket7_length")

# Sketch on XY plane
sketch11 = doc.addObject("Sketcher::SketchObject", "Sketch010")
body.addObject(sketch11)
sketch11.AttachmentSupport = (doc.XY_Plane, [""])
sketch11.MapMode = "FlatFace"
sketch11.AttachmentOffset = App.Placement(V(0, 0, 6), App.Rotation())
sketch11.addGeometry(Part.Circle(V(-25, 47, 0), V(0, 0, 1), 1.5), False)
sketch11.addGeometry(Part.Circle(V(-25, 37, 0), V(0, 0, 1), 1.5), False)
sketch11.addGeometry(Part.Circle(V(25, 37, 0), V(0, 0, 1), 1.5), False)
sketch11.addGeometry(Part.Circle(V(25, 47, 0), V(0, 0, 1), 1.5), False)
sketch11.addConstraint(Sketcher.Constraint("Equal", 0, 1))
sketch11.addConstraint(Sketcher.Constraint("Equal", 1, 2))
sketch11.addConstraint(Sketcher.Constraint("Equal", 2, 3))
sketch11.addConstraint(Sketcher.Constraint("Symmetric", 1, 3, 2, 3, -2))
sketch11.addConstraint(Sketcher.Constraint("Symmetric", 0, 3, 3, 3, -2))
sketch11.addConstraint(Sketcher.Constraint("Vertical", 0, 3, 1, 3))
sketch11.addConstraint(Sketcher.Constraint("Diameter", 0, 3.0))
sketch11.addConstraint(Sketcher.Constraint("DistanceX", 0, 3, -1, 1, 25.0))
sketch11.addConstraint(Sketcher.Constraint("DistanceY", -1, 1, 0, 3, 47.0))
sketch11.addConstraint(Sketcher.Constraint("DistanceY", -1, 1, 1, 3, 37.0))
sketch11.setExpression("Constraints[6]", "Params.sketch11_diameter")
pocket8 = doc.addObject("PartDesign::Pocket", "Pocket007")
body.addObject(pocket8)
pocket8.Profile = sketch11
pocket8.setExpression("Length", "Params.pocket8_length")
doc.recompute()

fillet3 = doc.addObject("PartDesign::Fillet", "Fillet002")
body.addObject(fillet3)
fillet3.Base = (pocket8, edges_at(pocket8, [
    (50.45, 40, 3),
    (33.95, 40, 3),
    (33.95, 55, 3),
    (-33.95, 55, 3),
    (-33.95, 40, 3),
    (-50.45, 40, 3),
    (-30.25, -10, 3),
    (30.25, -10, 3),
    (50.45, -10, 3),
    (-50.45, -10, 3),
]))
fillet3.setExpression("Radius", "Params.fillet3_radius")
body2 = doc.addObject("PartDesign::Body", "Body001")

# Sketch on XY plane
sketch12 = doc.addObject("Sketcher::SketchObject", "Sketch011")
body2.addObject(sketch12)
sketch12.AttachmentSupport = (doc.getObject("XY_Plane001"), [""])
sketch12.MapMode = "FlatFace"
sketch12.AttachmentOffset = App.Placement(V(0, 0, 6), App.Rotation())
sketch12.addGeometry(Part.LineSegment(V(27.95, 55, 0), V(27.95, 40, 0)), False)
sketch12.addGeometry(Part.LineSegment(V(27.95, 40, 0), V(33.95, 40, 0)), False)
sketch12.addGeometry(Part.LineSegment(V(33.95, 40, 0), V(33.95, 55, 0)), False)
sketch12.addGeometry(Part.LineSegment(V(33.95, 55, 0), V(27.95, 55, 0)), False)
sketch12.addConstraint(Sketcher.Constraint("Coincident", 0, 2, 1, 1))
sketch12.addConstraint(Sketcher.Constraint("Coincident", 1, 2, 2, 1))
sketch12.addConstraint(Sketcher.Constraint("Coincident", 2, 2, 3, 1))
sketch12.addConstraint(Sketcher.Constraint("Coincident", 3, 2, 0, 1))
sketch12.addConstraint(Sketcher.Constraint("Vertical", 0))
sketch12.addConstraint(Sketcher.Constraint("Horizontal", 1))
sketch12.addConstraint(Sketcher.Constraint("Vertical", 2))
sketch12.addConstraint(Sketcher.Constraint("Horizontal", 3))
sketch12.addConstraint(Sketcher.Constraint("DistanceX", 1, 1, 1, 2, 6.0))
sketch12.addConstraint(Sketcher.Constraint("DistanceY", 0, 2, 0, 1, 15.0))
sketch12.addConstraint(Sketcher.Constraint("DistanceY", -1, 1, 0, 2, 40.0))
sketch12.addConstraint(Sketcher.Constraint("DistanceX", -1, 1, 0, 2, 27.95))
sketch12.setExpression("Constraints[8]", "Params.sketch12_width")
sketch12.setExpression("Constraints[9]", "Params.sketch12_height")
pad4 = doc.addObject("PartDesign::Pad", "Pad003")
body2.addObject(pad4)
pad4.Profile = sketch12
pad4.setExpression("Length", "Params.pad4_length")

# Sketch on YZ plane
sketch13 = doc.addObject("Sketcher::SketchObject", "Sketch012")
body2.addObject(sketch13)
sketch13.AttachmentSupport = (doc.getObject("YZ_Plane001"), [""])
sketch13.MapMode = "FlatFace"
sketch13.AttachmentOffset = App.Placement(V(0, 0, 33.95), App.Rotation())
sketch13.addGeometry(Part.Circle(V(46.5, 21, 0), V(0, 0, 1), 2.5), False)
sketch13.addConstraint(Sketcher.Constraint("Diameter", 0, 5.0))
sketch13.addConstraint(Sketcher.Constraint("DistanceY", -1, 1, 0, 3, 21.0))
sketch13.addConstraint(Sketcher.Constraint("DistanceX", -1, 1, 0, 3, 46.5))
sketch13.setExpression("Constraints[0]", "Params.sketch13_diameter")
pocket9 = doc.addObject("PartDesign::Pocket", "Pocket008")
body2.addObject(pocket9)
pocket9.Profile = sketch13
pocket9.setExpression("Length", "Params.pocket9_length")

# Sketch on YZ plane
sketch14 = doc.addObject("Sketcher::SketchObject", "Sketch013")
body2.addObject(sketch14)
sketch14.AttachmentSupport = (doc.getObject("YZ_Plane001"), [""])
sketch14.MapMode = "FlatFace"
sketch14.AttachmentOffset = App.Placement(V(0, 0, 33.95), App.Rotation())
sketch14.addGeometry(Part.Circle(V(42, 9, 0), V(0, 0, 1), 1.5), False)
sketch14.addGeometry(Part.Circle(V(52, 9, 0), V(0, 0, 1), 1.5), False)
sketch14.addConstraint(Sketcher.Constraint("Equal", 0, 1))
sketch14.addConstraint(Sketcher.Constraint("Horizontal", 0, 3, 1, 3))
sketch14.addConstraint(Sketcher.Constraint("Diameter", 0, 3.0))
sketch14.addConstraint(Sketcher.Constraint("DistanceX", -1, 1, 0, 3, 42.0))
sketch14.addConstraint(Sketcher.Constraint("DistanceY", -1, 1, 0, 3, 9.0))
sketch14.addConstraint(Sketcher.Constraint("DistanceX", -1, 1, 1, 3, 52.0))
sketch14.setExpression("Constraints[2]", "Params.sketch14_diameter")
pocket10 = doc.addObject("PartDesign::Pocket", "Pocket009")
body2.addObject(pocket10)
pocket10.Profile = sketch14
pocket10.setExpression("Length", "Params.pocket10_length")

# Sketch on YZ plane
sketch15 = doc.addObject("Sketcher::SketchObject", "Sketch014")
body2.addObject(sketch15)
sketch15.AttachmentSupport = (doc.getObject("YZ_Plane001"), [""])
sketch15.MapMode = "FlatFace"
sketch15.AttachmentOffset = App.Placement(V(0, 0, 33.95), App.Rotation())
sketch15.addGeometry(Part.LineSegment(V(40, 26, 0), V(38, 26, 0)), False)
sketch15.addGeometry(Part.LineSegment(V(38, 26, 0), V(38, 6, 0)), False)
sketch15.addGeometry(Part.LineSegment(V(38, 6, 0), V(40, 6, 0)), False)
sketch15.addGeometry(Part.LineSegment(V(40, 6, 0), V(40, 26, 0)), False)
sketch15.addConstraint(Sketcher.Constraint("Coincident", 0, 2, 1, 1))
sketch15.addConstraint(Sketcher.Constraint("Coincident", 1, 2, 2, 1))
sketch15.addConstraint(Sketcher.Constraint("Coincident", 2, 2, 3, 1))
sketch15.addConstraint(Sketcher.Constraint("Coincident", 3, 2, 0, 1))
sketch15.addConstraint(Sketcher.Constraint("Horizontal", 0))
sketch15.addConstraint(Sketcher.Constraint("Vertical", 1))
sketch15.addConstraint(Sketcher.Constraint("Horizontal", 2))
sketch15.addConstraint(Sketcher.Constraint("Vertical", 3))
sketch15.addConstraint(Sketcher.Constraint("DistanceX", 0, 2, 0, 1, 2.0))
sketch15.addConstraint(Sketcher.Constraint("DistanceY", 1, 2, 1, 1, 20.0))
sketch15.addConstraint(Sketcher.Constraint("DistanceX", -1, 1, 0, 2, 38.0))
sketch15.addConstraint(Sketcher.Constraint("DistanceY", -1, 1, 0, 2, 26.0))
sketch15.setExpression("Constraints[8]", "Params.sketch15_width")
sketch15.setExpression("Constraints[9]", "Params.sketch15_height")
pad5 = doc.addObject("PartDesign::Pad", "Pad004")
body2.addObject(pad5)
pad5.Profile = sketch15
pad5.setExpression("Length", "Params.pad5_length")
pad5.Reversed = True
doc.recompute()

fillet4 = doc.addObject("PartDesign::Fillet", "Fillet003")
body2.addObject(fillet4)
fillet4.Base = (pad5, edges_at(pad5, [(30.95, 55, 26), (30.95, 38, 26)]))
fillet4.setExpression("Radius", "Params.fillet4_radius")
body3 = doc.addObject("PartDesign::Body", "Body002")
doc.recompute()

mirroring = doc.addObject("Part::Mirroring", "Mirroring")
mirroring.Source = body2
mirroring.Base = V(0, 0, 0)
mirroring.Normal = V(1, 0, 0)
body3.BaseFeature = mirroring
doc.recompute()
body4 = doc.addObject("PartDesign::Body", "Body003")

# Sketch on YZ plane
sketch16 = doc.addObject("Sketcher::SketchObject", "Sketch015")
body4.addObject(sketch16)
sketch16.AttachmentSupport = (doc.getObject("YZ_Plane003"), [""])
sketch16.MapMode = "FlatFace"
sketch16.AttachmentOffset = App.Placement(V(0, 0, -27.95), App.Rotation())
sketch16.addGeometry(Part.Circle(V(46.5, 21, 0), V(0, 0, 1), 4.5), False)
sketch16.addGeometry(Part.Circle(V(46.5, 21, 0), V(0, 0, 1), 2.5), False)
sketch16.addConstraint(Sketcher.Constraint("Coincident", 1, 3, 0, 3))
sketch16.addConstraint(Sketcher.Constraint("Diameter", 0, 9.0))
sketch16.addConstraint(Sketcher.Constraint("Diameter", 1, 5.0))
sketch16.addConstraint(Sketcher.Constraint("DistanceY", -1, 1, 0, 3, 21.0))
sketch16.addConstraint(Sketcher.Constraint("DistanceX", -1, 1, 0, 3, 46.5))
sketch16.setExpression("Constraints[1]", "Params.sketch16_diameter")
sketch16.setExpression("Constraints[2]", "Params.sketch16_diameter2")
pad6 = doc.addObject("PartDesign::Pad", "Pad005")
body4.addObject(pad6)
pad6.Profile = sketch16
pad6.setExpression("Length", "Params.pad6_length")
body2.Visibility = False
body3.Visibility = False
body4.Visibility = False
mirroring.Visibility = False

doc.recompute()
